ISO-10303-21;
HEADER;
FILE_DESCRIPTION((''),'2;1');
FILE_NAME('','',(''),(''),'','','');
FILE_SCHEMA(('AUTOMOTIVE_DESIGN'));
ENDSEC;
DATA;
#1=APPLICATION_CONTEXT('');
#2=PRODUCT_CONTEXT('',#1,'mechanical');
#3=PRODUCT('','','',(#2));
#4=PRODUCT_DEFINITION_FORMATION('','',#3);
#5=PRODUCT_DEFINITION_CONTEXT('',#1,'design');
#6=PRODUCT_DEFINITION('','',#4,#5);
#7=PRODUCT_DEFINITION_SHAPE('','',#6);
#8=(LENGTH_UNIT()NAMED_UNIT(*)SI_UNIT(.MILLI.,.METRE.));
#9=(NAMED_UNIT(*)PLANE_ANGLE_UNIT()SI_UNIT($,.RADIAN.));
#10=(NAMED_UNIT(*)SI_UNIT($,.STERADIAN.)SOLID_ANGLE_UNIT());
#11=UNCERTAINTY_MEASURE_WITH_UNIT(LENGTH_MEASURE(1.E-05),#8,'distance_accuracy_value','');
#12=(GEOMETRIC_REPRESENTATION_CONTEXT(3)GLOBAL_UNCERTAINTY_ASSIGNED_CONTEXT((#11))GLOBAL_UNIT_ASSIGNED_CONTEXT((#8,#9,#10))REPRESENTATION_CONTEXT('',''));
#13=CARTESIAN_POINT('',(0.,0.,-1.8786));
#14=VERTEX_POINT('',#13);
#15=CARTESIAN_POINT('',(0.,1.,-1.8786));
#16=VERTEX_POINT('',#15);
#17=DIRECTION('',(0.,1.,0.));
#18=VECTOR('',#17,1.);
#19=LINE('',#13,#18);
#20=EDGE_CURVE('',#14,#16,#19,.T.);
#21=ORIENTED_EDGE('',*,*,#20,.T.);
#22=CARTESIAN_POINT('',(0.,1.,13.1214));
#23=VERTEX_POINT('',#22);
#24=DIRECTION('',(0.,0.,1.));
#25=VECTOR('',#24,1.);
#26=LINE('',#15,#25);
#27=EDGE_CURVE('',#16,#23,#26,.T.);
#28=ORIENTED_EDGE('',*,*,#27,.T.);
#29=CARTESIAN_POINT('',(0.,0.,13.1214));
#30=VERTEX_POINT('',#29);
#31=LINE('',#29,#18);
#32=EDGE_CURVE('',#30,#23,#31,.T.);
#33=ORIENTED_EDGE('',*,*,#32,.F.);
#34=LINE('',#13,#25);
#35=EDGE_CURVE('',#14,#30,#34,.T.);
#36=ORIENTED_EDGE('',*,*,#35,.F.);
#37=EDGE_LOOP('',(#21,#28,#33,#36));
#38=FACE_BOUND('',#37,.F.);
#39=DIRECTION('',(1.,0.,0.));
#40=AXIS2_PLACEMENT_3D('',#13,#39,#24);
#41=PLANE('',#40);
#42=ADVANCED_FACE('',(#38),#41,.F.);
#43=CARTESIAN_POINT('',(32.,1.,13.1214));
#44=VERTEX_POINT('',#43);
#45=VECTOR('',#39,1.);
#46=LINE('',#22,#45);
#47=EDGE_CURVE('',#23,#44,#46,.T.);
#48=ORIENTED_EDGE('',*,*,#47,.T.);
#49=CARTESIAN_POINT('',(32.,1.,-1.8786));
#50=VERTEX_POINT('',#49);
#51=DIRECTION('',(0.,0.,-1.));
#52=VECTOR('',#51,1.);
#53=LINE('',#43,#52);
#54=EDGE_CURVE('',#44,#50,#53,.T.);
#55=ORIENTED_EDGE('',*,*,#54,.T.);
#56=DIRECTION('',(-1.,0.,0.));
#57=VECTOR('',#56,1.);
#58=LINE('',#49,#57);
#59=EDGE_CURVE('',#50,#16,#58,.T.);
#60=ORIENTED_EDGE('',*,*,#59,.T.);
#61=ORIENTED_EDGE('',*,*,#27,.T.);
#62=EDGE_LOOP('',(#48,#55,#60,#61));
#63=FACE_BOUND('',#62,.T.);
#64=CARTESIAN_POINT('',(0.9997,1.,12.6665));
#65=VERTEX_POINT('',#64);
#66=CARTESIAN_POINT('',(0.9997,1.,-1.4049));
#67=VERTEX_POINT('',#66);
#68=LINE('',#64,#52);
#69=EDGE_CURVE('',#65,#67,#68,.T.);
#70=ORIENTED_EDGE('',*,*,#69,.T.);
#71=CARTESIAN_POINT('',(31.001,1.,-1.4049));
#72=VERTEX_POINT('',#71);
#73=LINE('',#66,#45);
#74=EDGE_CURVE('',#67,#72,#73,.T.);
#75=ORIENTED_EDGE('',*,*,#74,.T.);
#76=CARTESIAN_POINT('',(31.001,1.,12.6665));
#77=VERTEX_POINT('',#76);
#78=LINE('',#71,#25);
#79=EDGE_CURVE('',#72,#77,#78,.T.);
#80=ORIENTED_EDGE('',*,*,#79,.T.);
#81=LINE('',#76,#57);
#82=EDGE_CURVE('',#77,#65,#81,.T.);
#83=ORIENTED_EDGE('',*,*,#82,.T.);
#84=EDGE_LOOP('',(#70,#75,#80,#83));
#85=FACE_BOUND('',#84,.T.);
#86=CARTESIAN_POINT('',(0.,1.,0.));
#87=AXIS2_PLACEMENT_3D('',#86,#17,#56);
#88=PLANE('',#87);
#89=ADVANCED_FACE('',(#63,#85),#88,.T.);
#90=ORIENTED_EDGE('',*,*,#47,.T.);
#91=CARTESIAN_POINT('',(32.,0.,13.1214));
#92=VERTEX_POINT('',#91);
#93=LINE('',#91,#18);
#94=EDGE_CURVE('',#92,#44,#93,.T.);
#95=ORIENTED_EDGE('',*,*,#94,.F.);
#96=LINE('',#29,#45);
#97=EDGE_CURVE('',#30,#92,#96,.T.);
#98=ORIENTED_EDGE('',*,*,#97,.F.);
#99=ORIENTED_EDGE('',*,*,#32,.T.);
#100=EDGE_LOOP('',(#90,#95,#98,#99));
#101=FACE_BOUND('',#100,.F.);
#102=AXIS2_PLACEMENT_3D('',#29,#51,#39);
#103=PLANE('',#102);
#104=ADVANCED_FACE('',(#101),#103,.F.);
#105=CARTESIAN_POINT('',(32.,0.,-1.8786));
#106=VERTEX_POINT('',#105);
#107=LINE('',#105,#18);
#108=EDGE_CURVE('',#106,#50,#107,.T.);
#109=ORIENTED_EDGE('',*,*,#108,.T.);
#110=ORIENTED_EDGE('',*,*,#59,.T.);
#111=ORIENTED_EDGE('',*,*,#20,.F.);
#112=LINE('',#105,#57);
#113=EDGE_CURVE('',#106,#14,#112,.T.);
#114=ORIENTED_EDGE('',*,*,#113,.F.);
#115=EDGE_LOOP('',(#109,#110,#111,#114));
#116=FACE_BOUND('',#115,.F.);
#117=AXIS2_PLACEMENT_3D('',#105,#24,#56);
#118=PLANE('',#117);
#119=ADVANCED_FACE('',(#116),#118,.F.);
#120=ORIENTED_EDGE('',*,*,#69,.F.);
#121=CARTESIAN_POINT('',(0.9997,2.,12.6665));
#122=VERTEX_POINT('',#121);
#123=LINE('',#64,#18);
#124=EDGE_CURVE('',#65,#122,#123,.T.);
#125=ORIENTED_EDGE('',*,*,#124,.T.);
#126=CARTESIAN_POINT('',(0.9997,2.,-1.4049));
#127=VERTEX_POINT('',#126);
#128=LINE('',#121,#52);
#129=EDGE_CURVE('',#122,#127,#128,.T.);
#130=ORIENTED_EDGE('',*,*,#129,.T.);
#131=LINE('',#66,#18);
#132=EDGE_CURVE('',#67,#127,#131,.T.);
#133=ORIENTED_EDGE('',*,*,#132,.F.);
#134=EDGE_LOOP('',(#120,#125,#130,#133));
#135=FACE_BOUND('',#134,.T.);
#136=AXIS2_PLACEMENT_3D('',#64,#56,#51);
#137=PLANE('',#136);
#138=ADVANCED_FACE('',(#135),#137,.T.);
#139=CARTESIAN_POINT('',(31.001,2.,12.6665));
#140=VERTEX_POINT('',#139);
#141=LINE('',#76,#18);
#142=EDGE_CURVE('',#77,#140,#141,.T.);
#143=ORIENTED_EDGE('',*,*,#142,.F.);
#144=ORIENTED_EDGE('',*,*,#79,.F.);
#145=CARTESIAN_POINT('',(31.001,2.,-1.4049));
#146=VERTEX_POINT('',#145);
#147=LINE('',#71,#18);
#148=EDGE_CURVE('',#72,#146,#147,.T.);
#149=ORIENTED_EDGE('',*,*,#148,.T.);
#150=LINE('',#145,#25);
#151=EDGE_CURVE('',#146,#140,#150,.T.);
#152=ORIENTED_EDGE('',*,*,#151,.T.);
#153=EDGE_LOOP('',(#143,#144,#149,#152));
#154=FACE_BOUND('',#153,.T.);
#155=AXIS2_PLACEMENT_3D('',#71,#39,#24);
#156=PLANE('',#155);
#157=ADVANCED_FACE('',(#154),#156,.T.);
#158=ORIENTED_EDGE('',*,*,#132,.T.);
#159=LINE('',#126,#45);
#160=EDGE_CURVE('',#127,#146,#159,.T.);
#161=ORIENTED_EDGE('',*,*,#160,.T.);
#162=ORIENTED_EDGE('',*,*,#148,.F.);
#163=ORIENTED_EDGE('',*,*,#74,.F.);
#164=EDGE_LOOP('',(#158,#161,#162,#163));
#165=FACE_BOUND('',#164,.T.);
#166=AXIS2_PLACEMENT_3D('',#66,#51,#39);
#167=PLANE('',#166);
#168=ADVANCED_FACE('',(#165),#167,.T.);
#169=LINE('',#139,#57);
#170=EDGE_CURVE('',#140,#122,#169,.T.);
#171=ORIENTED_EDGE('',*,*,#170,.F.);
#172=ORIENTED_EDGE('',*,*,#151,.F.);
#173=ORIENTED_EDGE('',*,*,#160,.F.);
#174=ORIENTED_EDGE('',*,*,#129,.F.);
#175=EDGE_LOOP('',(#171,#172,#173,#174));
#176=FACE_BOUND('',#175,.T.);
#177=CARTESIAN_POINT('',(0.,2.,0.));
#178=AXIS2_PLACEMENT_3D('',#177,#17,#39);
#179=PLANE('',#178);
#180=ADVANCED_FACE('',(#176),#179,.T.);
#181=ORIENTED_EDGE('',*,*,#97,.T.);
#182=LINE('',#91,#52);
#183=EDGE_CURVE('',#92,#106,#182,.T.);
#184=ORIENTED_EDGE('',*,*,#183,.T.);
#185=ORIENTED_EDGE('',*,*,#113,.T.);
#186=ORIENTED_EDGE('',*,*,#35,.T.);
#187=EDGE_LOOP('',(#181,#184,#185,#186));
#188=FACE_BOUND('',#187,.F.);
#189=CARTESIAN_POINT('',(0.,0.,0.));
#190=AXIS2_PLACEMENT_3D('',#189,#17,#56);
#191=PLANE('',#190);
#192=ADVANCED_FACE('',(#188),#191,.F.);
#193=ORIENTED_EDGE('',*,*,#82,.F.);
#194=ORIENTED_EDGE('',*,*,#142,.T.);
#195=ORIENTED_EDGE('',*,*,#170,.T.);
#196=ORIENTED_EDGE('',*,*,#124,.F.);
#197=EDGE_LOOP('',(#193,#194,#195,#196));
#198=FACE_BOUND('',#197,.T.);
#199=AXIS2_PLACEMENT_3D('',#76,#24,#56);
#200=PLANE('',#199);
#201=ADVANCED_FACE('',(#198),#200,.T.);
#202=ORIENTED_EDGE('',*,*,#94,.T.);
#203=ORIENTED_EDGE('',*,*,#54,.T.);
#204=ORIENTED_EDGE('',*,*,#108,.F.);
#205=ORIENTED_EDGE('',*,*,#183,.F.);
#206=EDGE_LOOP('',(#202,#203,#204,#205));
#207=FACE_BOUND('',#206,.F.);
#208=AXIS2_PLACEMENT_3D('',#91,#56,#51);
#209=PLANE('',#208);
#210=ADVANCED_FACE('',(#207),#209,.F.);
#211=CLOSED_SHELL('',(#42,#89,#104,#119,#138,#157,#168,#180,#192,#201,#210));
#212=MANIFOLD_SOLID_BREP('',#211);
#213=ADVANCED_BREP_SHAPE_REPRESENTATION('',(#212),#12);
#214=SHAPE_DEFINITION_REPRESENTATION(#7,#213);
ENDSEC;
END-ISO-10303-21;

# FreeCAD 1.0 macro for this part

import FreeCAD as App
import Part
import Sketcher

V = App.Vector

doc = App.newDocument("Part")
params = doc.addObject("Spreadsheet::Sheet", "Params")
for row, (alias, value) in enumerate([
    ("sketch1_width", "32 mm"),
    ("sketch1_height", "15 mm"),
    ("pad1_length", "1 mm"),
    ("pad2_length", "1 mm"),
], start=1):
    params.set(f"A{row}", alias)
    params.set(f"B{row}", "=" + value)
    params.setAlias(f"B{row}", alias)

body = doc.addObject("PartDesign::Body", "Body")

sketch1 = body.newObject("Sketcher::SketchObject", "Sketch")
sketch1.AttachmentSupport = (doc.getObject("XZ_Plane"), [""])
sketch1.MapMode = "FlatFace"
sketch1.addGeometry([
    Part.LineSegment(V(0, -1.8786, 0), V(0, 13.1214, 0)),
    Part.LineSegment(V(0, 13.1214, 0), V(32, 13.1214, 0)),
    Part.LineSegment(V(32, 13.1214, 0), V(32, -1.8786, 0)),
    Part.LineSegment(V(32, -1.8786, 0), V(0, -1.8786, 0)),
], False)
sketch1.addConstraint([
    Sketcher.Constraint("Coincident", 0, 2, 1, 1),
    Sketcher.Constraint("Coincident", 1, 2, 2, 1),
    Sketcher.Constraint("Coincident", 2, 2, 3, 1),
    Sketcher.Constraint("Coincident", 3, 2, 0, 1),
    Sketcher.Constraint("Vertical", 0),
    Sketcher.Constraint("Horizontal", 1),
    Sketcher.Constraint("Vertical", 2),
    Sketcher.Constraint("Horizontal", 3),
    Sketcher.Constraint("PointOnObject", 0, 2, -2),
    Sketcher.Constraint("DistanceX", 1, 1, 1, 2, 32.0),
    Sketcher.Constraint("DistanceY", 0, 1, 0, 2, 15.0),
    Sketcher.Constraint("DistanceY", -1, 1, 0, 2, 13.1214),
])
sketch1.setExpression("Constraints[9]", "Params.sketch1_width")
sketch1.setExpression("Constraints[10]", "Params.sketch1_height")
pad1 = body.newObject("PartDesign::Pad", "Pad")
pad1.Profile = sketch1
pad1.setExpression("Length", "Params.pad1_length")
pad1.Reversed = True

sketch2 = body.newObject("Sketcher::SketchObject", "Sketch001")
sketch2.AttachmentSupport = (doc.getObject("XZ_Plane"), [""])
sketch2.MapMode = "FlatFace"
sketch2.AttachmentOffset = App.Placement(V(0, 0, -1), App.Rotation())
sketch2.addGeometry([
    Part.LineSegment(V(0.9997, 12.6665, 0), V(31.001, 12.6665, 0)),
    Part.LineSegment(V(31.001, 12.6665, 0), V(31.001, -1.4049, 0)),
    Part.LineSegment(V(31.001, -1.4049, 0), V(0.9997, -1.4049, 0)),
    Part.LineSegment(V(0.9997, -1.4049, 0), V(0.9997, 12.6665, 0)),
], False)
sketch2.addConstraint([
    Sketcher.Constraint("Coincident", 0, 2, 1, 1),
    Sketcher.Constraint("Coincident", 1, 2, 2, 1),
    Sketcher.Constraint("Coincident", 2, 2, 3, 1),
    Sketcher.Constraint("Coincident", 3, 2, 0, 1),
    Sketcher.Constraint("Horizontal", 0),
    Sketcher.Constraint("Vertical", 1),
    Sketcher.Constraint("Horizontal", 2),
    Sketcher.Constraint("Vertical", 3),
    Sketcher.Constraint("DistanceX", 0, 1, 0, 2, 30.0013),
    Sketcher.Constraint("DistanceY", 1, 2, 1, 1, 14.0714),
    Sketcher.Constraint("DistanceX", -1, 1, 0, 2, 31.001),
    Sketcher.Constraint("DistanceY", 1, 2, -1, 1, 1.405),
])
pad2 = body.newObject("PartDesign::Pad", "Pad001")
pad2.Profile = sketch2
pad2.setExpression("Length", "Params.pad2_length")
pad2.Reversed = True

doc.recompute()
